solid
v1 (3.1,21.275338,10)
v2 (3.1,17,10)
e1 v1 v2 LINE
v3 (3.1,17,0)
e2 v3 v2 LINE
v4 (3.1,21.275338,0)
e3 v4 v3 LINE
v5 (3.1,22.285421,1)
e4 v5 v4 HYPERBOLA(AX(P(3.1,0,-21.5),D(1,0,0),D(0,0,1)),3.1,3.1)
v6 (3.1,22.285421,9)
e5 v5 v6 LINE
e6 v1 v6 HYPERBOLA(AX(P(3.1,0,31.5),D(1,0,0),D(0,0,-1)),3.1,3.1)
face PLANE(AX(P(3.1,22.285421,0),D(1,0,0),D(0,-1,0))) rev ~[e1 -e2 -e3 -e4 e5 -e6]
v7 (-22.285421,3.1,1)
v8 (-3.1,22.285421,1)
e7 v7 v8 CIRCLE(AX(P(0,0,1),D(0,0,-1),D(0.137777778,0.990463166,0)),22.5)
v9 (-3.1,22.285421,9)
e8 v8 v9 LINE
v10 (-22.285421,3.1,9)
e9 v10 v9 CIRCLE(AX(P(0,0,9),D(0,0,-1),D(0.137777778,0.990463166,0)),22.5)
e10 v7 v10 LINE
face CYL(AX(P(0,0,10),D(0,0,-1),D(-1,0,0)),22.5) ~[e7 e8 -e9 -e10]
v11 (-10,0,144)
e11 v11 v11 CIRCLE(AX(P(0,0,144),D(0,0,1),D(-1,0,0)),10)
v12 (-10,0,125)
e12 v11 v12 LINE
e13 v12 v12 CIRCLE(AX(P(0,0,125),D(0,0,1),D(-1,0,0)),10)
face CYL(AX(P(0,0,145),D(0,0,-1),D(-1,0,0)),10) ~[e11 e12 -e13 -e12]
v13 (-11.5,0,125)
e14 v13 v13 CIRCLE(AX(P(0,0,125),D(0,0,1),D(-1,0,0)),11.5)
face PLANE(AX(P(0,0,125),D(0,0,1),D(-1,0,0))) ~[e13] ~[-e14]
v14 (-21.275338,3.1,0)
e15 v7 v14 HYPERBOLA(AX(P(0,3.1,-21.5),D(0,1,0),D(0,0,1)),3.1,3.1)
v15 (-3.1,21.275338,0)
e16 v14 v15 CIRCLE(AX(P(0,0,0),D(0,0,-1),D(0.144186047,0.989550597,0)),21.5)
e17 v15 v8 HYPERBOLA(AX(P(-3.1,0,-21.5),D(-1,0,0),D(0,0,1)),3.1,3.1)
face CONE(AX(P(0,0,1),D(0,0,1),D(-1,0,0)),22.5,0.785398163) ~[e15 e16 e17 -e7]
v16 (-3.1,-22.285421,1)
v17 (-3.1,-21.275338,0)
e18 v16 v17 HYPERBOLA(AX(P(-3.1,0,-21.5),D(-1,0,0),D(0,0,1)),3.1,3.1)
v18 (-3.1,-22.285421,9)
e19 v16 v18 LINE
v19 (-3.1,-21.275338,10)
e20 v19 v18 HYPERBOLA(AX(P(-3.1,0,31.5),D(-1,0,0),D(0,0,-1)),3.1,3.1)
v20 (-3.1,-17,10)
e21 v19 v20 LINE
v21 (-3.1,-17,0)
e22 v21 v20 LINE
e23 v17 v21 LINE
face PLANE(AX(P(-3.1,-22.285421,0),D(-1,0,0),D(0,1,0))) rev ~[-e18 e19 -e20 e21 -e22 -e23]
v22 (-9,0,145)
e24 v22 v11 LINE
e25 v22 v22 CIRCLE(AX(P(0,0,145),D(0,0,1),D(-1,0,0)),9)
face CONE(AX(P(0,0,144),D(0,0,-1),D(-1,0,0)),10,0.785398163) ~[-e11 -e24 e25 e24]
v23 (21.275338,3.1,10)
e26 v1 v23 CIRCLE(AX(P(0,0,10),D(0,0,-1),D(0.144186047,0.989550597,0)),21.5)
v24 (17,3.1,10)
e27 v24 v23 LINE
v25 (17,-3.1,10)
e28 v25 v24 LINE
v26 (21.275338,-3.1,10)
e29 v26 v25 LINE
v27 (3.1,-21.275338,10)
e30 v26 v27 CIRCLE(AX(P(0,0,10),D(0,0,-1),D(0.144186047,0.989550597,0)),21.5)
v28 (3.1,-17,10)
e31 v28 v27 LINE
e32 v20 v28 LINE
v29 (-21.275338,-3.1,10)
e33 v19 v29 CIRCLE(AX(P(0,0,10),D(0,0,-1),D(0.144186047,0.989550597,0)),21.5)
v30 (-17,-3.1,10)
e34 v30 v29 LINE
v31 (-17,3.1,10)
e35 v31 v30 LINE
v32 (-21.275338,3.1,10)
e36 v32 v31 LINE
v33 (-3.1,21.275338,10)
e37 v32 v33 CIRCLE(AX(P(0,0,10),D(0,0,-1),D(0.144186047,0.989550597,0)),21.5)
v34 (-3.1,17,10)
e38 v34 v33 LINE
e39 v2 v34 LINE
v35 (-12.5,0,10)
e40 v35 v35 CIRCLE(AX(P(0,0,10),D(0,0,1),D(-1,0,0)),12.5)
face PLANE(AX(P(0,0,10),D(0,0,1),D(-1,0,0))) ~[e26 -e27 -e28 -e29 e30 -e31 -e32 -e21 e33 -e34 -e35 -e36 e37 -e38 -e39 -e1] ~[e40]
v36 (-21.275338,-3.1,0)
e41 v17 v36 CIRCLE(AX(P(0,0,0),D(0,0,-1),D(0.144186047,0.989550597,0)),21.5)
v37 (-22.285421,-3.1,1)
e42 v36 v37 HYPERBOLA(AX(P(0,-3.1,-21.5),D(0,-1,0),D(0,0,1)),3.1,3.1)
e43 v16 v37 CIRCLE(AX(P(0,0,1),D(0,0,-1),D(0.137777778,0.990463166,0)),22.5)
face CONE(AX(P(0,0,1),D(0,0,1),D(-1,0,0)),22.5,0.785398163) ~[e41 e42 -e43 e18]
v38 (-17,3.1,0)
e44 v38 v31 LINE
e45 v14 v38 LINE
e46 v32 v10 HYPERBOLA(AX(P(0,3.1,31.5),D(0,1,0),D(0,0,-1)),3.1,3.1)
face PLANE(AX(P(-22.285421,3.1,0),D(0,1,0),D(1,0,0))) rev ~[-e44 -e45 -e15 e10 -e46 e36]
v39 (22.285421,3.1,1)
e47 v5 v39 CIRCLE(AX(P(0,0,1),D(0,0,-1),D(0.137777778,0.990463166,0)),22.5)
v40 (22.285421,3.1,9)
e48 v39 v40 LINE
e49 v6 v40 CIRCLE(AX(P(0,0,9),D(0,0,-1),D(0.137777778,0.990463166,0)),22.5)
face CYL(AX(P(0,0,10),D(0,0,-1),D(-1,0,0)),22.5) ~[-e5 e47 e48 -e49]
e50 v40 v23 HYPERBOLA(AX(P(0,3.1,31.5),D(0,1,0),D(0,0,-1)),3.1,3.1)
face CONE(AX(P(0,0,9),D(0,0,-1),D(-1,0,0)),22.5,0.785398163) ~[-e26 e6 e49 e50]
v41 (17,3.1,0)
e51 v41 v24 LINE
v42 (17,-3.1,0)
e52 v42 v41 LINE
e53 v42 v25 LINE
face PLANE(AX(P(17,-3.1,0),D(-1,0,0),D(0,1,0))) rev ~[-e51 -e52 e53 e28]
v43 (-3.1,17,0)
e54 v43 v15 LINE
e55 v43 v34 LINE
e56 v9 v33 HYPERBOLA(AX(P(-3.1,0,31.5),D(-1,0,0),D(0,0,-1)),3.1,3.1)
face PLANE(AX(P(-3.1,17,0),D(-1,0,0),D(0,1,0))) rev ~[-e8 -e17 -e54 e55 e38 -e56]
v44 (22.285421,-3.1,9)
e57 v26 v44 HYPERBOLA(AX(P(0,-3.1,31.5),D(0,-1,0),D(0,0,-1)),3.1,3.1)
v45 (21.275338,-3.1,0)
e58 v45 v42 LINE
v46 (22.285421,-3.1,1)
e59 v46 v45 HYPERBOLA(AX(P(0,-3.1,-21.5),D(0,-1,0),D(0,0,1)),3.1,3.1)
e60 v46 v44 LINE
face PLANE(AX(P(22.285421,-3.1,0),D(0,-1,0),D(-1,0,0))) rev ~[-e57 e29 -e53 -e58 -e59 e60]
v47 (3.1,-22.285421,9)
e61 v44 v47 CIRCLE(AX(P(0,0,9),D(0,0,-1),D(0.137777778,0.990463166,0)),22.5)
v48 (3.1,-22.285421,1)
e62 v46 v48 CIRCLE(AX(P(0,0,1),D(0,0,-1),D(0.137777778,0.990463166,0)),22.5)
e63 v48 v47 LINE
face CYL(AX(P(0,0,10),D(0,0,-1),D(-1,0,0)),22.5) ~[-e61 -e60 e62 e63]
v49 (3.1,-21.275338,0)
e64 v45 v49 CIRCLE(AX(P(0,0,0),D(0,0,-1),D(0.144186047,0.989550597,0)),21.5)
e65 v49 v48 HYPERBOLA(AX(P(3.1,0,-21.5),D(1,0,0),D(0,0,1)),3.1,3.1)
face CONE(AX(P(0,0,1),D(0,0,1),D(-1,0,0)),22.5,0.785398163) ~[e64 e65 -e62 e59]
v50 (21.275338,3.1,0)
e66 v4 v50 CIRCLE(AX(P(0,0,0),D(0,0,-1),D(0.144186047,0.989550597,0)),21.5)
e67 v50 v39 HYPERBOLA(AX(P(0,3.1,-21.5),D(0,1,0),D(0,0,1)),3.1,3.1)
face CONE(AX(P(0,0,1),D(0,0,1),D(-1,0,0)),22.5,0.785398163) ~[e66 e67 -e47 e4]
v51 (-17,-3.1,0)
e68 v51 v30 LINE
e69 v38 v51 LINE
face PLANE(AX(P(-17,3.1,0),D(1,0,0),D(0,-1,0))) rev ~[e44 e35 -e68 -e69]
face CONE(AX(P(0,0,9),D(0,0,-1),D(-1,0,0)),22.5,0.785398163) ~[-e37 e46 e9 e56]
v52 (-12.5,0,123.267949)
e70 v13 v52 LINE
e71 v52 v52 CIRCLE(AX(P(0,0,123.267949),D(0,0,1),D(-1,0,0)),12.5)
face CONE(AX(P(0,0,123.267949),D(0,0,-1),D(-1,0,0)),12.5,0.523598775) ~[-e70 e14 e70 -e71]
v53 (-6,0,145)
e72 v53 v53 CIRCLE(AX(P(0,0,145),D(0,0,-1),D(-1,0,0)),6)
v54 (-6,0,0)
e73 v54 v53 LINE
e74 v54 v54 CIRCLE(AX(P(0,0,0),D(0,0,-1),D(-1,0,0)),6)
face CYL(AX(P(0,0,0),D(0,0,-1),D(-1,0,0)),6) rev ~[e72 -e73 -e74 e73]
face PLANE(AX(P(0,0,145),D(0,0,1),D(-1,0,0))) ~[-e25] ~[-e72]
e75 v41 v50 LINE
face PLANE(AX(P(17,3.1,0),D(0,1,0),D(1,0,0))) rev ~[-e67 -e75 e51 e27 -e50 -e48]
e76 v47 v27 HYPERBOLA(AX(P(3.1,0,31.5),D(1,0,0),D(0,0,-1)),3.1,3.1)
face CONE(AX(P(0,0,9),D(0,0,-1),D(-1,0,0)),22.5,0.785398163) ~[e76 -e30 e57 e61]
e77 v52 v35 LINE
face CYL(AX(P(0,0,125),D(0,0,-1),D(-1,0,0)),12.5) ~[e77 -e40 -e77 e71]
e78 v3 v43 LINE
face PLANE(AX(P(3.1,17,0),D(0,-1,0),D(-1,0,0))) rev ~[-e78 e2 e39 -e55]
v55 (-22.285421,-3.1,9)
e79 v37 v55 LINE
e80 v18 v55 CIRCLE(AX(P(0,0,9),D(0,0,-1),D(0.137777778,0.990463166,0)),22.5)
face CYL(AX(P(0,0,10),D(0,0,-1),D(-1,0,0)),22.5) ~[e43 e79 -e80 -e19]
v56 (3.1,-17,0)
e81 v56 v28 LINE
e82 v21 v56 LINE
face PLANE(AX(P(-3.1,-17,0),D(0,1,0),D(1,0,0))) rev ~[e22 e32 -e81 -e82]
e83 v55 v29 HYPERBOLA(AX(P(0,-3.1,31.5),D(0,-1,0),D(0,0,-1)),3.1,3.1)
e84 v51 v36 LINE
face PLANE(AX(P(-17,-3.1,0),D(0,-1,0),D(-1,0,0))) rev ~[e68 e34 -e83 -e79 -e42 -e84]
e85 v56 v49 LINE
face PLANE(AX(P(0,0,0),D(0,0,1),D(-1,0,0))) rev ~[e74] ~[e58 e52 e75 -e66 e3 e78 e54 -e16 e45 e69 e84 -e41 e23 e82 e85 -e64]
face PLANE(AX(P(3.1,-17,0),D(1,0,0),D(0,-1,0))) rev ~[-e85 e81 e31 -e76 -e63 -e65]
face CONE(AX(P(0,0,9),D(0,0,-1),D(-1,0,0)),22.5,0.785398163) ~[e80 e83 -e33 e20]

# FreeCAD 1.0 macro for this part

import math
import FreeCAD as App
import Part
import Sketcher
Q = App.Units.Quantity


def edges_at(feature, points):
    """Names of the edges that pass closest to the given points."""
    edges = feature.Shape.Edges
    near = lambda p: min(range(len(edges)), key=lambda i: edges[i].distToShape(Part.Vertex(*p))[0])
    return sorted({f"Edge{near(p) + 1}" for p in points})


def add_polygon(sketch, points):
    """Adds a closed chain of lines whose ends are joined by coincident constraints."""
    first, n = sketch.GeometryCount, len(points)
    for a, b in zip(points, points[1:] + points[:1]):
        sketch.addGeometry(Part.LineSegment(App.Vector(*a, 0), App.Vector(*b, 0)), False)
    for i in range(n):
        sketch.addConstraint(Sketcher.Constraint("Coincident", first + i, 2, first + (i + 1) % n, 1))

doc = App.newDocument("Part")
body = doc.addObject("PartDesign::Body", "Body")

sketch1 = body.newObject("Sketcher::SketchObject", "Sketch")
sketch1.AttachmentSupport = (doc.getObject("YZ_Plane"), [""])
sketch1.MapMode = "FlatFace"
add_polygon(sketch1, [(10, 145), (0, 145), (0, 0), (22.5, 0), (22.5, 10), (12.5, 10), (12.5, 125), (10, 125)])
sketch1.addConstraint([
    Sketcher.Constraint("Horizontal", 0),
    Sketcher.Constraint("Vertical", 1),
    Sketcher.Constraint("Horizontal", 2),
    Sketcher.Constraint("Vertical", 3),
    Sketcher.Constraint("Horizontal", 4),
    Sketcher.Constraint("Vertical", 5),
    Sketcher.Constraint("Horizontal", 6),
    Sketcher.Constraint("Vertical", 7),
    Sketcher.Constraint("Coincident", 1, 2, -1, 1),
    Sketcher.Constraint("Equal", 0, 4),
    Sketcher.Constraint("Equal", 4, 3),
    Sketcher.Constraint("DistanceX", 0, 2, 0, 1, Q("10 mm")),
    Sketcher.Constraint("DistanceY", 1, 2, 1, 1, Q("145 mm")),
    Sketcher.Constraint("DistanceY", 5, 1, 5, 2, Q("115 mm")),
    Sketcher.Constraint("DistanceX", 2, 1, 2, 2, Q("22.5 mm")),
])
revolution = body.newObject("PartDesign::Revolution", "Revolution")
revolution.Profile = sketch1
revolution.ReferenceAxis = (sketch1, ["V_Axis"])
revolution.Angle = 360
doc.recompute()

chamfer = body.newObject("PartDesign::Chamfer", "Chamfer")
chamfer.Base = (revolution, edges_at(revolution, [(22.5, 0, 0), (22.5, 0, 10), (10, 0, 145)]))
chamfer.Size = 1

sketch2 = body.newObject("Sketcher::SketchObject", "Sketch001")
sketch2.AttachmentSupport = (doc.getObject("XY_Plane"), [""])
sketch2.MapMode = "FlatFace"
sketch2.addGeometry(Part.Circle(App.Vector(0, 0, 0), App.Vector(0, 0, 1), 6), False)
sketch2.addConstraint([
    Sketcher.Constraint("Coincident", 0, 3, -1, 1),
    Sketcher.Constraint("Diameter", 0, Q("12 mm")),
])
pocket1 = body.newObject("PartDesign::Pocket", "Pocket")
pocket1.Profile = sketch2
pocket1.Type = "ThroughAll"
pocket1.Reversed = True

sketch3 = body.newObject("Sketcher::SketchObject", "Sketch002")
sketch3.AttachmentSupport = (doc.getObject("XY_Plane"), [""])
sketch3.MapMode = "FlatFace"
sketch3.addGeometry([
    Part.LineSegment(App.Vector(3, 22, 0), App.Vector(3, 17, 0)),
    Part.LineSegment(App.Vector(3, 17, 0), App.Vector(-3, 17, 0)),
    Part.LineSegment(App.Vector(-3, 17, 0), App.Vector(-3, 22, 0)),
    Part.ArcOfCircle(Part.Circle(App.Vector(0, 0, 0), App.Vector(0, 0, 1), 22), math.radians(82.08), math.radians(97.92)),
], False)
sketch3.addConstraint([
    Sketcher.Constraint("Coincident", 0, 2, 1, 1),
    Sketcher.Constraint("Coincident", 1, 2, 2, 1),
    Sketcher.Constraint("Coincident", 2, 2, 3, 2),
    Sketcher.Constraint("Coincident", 3, 1, 0, 1),
    Sketcher.Constraint("Vertical", 0),
    Sketcher.Constraint("Horizontal", 1),
    Sketcher.Constraint("Vertical", 2),
    Sketcher.Constraint("Coincident", 3, 3, -1, 1),
    Sketcher.Constraint("Horizontal", 2, 2, 3, 1),
    Sketcher.Constraint("Radius", 3, Q("22.5 mm")),
    Sketcher.Constraint("DistanceX", 1, 2, 1, 1, Q("6.2 mm")),
    Sketcher.Constraint("DistanceY", -1, 1, 0, 2, Q("17 mm")),
])
pocket2 = body.newObject("PartDesign::Pocket", "Pocket001")
pocket2.Profile = sketch3
pocket2.Type = "ThroughAll"
pocket2.Reversed = True
doc.recompute()

polarpattern = body.newObject("PartDesign::PolarPattern", "PolarPattern")
polarpattern.Originals = [pocket2]
polarpattern.Axis = (doc.getObject("Z_Axis"), [""])
polarpattern.Angle = 360
polarpattern.Occurrences = 4
body.Tip = polarpattern
doc.recompute()

chamfer2 = body.newObject("PartDesign::Chamfer", "Chamfer001")
chamfer2.Base = (polarpattern, edges_at(polarpattern, [(12.5, 0, 125)]))
chamfer2.ChamferType = "Two distances"
chamfer2.Size = 1
chamfer2.Size2 = 1.732051

doc.recompute()
